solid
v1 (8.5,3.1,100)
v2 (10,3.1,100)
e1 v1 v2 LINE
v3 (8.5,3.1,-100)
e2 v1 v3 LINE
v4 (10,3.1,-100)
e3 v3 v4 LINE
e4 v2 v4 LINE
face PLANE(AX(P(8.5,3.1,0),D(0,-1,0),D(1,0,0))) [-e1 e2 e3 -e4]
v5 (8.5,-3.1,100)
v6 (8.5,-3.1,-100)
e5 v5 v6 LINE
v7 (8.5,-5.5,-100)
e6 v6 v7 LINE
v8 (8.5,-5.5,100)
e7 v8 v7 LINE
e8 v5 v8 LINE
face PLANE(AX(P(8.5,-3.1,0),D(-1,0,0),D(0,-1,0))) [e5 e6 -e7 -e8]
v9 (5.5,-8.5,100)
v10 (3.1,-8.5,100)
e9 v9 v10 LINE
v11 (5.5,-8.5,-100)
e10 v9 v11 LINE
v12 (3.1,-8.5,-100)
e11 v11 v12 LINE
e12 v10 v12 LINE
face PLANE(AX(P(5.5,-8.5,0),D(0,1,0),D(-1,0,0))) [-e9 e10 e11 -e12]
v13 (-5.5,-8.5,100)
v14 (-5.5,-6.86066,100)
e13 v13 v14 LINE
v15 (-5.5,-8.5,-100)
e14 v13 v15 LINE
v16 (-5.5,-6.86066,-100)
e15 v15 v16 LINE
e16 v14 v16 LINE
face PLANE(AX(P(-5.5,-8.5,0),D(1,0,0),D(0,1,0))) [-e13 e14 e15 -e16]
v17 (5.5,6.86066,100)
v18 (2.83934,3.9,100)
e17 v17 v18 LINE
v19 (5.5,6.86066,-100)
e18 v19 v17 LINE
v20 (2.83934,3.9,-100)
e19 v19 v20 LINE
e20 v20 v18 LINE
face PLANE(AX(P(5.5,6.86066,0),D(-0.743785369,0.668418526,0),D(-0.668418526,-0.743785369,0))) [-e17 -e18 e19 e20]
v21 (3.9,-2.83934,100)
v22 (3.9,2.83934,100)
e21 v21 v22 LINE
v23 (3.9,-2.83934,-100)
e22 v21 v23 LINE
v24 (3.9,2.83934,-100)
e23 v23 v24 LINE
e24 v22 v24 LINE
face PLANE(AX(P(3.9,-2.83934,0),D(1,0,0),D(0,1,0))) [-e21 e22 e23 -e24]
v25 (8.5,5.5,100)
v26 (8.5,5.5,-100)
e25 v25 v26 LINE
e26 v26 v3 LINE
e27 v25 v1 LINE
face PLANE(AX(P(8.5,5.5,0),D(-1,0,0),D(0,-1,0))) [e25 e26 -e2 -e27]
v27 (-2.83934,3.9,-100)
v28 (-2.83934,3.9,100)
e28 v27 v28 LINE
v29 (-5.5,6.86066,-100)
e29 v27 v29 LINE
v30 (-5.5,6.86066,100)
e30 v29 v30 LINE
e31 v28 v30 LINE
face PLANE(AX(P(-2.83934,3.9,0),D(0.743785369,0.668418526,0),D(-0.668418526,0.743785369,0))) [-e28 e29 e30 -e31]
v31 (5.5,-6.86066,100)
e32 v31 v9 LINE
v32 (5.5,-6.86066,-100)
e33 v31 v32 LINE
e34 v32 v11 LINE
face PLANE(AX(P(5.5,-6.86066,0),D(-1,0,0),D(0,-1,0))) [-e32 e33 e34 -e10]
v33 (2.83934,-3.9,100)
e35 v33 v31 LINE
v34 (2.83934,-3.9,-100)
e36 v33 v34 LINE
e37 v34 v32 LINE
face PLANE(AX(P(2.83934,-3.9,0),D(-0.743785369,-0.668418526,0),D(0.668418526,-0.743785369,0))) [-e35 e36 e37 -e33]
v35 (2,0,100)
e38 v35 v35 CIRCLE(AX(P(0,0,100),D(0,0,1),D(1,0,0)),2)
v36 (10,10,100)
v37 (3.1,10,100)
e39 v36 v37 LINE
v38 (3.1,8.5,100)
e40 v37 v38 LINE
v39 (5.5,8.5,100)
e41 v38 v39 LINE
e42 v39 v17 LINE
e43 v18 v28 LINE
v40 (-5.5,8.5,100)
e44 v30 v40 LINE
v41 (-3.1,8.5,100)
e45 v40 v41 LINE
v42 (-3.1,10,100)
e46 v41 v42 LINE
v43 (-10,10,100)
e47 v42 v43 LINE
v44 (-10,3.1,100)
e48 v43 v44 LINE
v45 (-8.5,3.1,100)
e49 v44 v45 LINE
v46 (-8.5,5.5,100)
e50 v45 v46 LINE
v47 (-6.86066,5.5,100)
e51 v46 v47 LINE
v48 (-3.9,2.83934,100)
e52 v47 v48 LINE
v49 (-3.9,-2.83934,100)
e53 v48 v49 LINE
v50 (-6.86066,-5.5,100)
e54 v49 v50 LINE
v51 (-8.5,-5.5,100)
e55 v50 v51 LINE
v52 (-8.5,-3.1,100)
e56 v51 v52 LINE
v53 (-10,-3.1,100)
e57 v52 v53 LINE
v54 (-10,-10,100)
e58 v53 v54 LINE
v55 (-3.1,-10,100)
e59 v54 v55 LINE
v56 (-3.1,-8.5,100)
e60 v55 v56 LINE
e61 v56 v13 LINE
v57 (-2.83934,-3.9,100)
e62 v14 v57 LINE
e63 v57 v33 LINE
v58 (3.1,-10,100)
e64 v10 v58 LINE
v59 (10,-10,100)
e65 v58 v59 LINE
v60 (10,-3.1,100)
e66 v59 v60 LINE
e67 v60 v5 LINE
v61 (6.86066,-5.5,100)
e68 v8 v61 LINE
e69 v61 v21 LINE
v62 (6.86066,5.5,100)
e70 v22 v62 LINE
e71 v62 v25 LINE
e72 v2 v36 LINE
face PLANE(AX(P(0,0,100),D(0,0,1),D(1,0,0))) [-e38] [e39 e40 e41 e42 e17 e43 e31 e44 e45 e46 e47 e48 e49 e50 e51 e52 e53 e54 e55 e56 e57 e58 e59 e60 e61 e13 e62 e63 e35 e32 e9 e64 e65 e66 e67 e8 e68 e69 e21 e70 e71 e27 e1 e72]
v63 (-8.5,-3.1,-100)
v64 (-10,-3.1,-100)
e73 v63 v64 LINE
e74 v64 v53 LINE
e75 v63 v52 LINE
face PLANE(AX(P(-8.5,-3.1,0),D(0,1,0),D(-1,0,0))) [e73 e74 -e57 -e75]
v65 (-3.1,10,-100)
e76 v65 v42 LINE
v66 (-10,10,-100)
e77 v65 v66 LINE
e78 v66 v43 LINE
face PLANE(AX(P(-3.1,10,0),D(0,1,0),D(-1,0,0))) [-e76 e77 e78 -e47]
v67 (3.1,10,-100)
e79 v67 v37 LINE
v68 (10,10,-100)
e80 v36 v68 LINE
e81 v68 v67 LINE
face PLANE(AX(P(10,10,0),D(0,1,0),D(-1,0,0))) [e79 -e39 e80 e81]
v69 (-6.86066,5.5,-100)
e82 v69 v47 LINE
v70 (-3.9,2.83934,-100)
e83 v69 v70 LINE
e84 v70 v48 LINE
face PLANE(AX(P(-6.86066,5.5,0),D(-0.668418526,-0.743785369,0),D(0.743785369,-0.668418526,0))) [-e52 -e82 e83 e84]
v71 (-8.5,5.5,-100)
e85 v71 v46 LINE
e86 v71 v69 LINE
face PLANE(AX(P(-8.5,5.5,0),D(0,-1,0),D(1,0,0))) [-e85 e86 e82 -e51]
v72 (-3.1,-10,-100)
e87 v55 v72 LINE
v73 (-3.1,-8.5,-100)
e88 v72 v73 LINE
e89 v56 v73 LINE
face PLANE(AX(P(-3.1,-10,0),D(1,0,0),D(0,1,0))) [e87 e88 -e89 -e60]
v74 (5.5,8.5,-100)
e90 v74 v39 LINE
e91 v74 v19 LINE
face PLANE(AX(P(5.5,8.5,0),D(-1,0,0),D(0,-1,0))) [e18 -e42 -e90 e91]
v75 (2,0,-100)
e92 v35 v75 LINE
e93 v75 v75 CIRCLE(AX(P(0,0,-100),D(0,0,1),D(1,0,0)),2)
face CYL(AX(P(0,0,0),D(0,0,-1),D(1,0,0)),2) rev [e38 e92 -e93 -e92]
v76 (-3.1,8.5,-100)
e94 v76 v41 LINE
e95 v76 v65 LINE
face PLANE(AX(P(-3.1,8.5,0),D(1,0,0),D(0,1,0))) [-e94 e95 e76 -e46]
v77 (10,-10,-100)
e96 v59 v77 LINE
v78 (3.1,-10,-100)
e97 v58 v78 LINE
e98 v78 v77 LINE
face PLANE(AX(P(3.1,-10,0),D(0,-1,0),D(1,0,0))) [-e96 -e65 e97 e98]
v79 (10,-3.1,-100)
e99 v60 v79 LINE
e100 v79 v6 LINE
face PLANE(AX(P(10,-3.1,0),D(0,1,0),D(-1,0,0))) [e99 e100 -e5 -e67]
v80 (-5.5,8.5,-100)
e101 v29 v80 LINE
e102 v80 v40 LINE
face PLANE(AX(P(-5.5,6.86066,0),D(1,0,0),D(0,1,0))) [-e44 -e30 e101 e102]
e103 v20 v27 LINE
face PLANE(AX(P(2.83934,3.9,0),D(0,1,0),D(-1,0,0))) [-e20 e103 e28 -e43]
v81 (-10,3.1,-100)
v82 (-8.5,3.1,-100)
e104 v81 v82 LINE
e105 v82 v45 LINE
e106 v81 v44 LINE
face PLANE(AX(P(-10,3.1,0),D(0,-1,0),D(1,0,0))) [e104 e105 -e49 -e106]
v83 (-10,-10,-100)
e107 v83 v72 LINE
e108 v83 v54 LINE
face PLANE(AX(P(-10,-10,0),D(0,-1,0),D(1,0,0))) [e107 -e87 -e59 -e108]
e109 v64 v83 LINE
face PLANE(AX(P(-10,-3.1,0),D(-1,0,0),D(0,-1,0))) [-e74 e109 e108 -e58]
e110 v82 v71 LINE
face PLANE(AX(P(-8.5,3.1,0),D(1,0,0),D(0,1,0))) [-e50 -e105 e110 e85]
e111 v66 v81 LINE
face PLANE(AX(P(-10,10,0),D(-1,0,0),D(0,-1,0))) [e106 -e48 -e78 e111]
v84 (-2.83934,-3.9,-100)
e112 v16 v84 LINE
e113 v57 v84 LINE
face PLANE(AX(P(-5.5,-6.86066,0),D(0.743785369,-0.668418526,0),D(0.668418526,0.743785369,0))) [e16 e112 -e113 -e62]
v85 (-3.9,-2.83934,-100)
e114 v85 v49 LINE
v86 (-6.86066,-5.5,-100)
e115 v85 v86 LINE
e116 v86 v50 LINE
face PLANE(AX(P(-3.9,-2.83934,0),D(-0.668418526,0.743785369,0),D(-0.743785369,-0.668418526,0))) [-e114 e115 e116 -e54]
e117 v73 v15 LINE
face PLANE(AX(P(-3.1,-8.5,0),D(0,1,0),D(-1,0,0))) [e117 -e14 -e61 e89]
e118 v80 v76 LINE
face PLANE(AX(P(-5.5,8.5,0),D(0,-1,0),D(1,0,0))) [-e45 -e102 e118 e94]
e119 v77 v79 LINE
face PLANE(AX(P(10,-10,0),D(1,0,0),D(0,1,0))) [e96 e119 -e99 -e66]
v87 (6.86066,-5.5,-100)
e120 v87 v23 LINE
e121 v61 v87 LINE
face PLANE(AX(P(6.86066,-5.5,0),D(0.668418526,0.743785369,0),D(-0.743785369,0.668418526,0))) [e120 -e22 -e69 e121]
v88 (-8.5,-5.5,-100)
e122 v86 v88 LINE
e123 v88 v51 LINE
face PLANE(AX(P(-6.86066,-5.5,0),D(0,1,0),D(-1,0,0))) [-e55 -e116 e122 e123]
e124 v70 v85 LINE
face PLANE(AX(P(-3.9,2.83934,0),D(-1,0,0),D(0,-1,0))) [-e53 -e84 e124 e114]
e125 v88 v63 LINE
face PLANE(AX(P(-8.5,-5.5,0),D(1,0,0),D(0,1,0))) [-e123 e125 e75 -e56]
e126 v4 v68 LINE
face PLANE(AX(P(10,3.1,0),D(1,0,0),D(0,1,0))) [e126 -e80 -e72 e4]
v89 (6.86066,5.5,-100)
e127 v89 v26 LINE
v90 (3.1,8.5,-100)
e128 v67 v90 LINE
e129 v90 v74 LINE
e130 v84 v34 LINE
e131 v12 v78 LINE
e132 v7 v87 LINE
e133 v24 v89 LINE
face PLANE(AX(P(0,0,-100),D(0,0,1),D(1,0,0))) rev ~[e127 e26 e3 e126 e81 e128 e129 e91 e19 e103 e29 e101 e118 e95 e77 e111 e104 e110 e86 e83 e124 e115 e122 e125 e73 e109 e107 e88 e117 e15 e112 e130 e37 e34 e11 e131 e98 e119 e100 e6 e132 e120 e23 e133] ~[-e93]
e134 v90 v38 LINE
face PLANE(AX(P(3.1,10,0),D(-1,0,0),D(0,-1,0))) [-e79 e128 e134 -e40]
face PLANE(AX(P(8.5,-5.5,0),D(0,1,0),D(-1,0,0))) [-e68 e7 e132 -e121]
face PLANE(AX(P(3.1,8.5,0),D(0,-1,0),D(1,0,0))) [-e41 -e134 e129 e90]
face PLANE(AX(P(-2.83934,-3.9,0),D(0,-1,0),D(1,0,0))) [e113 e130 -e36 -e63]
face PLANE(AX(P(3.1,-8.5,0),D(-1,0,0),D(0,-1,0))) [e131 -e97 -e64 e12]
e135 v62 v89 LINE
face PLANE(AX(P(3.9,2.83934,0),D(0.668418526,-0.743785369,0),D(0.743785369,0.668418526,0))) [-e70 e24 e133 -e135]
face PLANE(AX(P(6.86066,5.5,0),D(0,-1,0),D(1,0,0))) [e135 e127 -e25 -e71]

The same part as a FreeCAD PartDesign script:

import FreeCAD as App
import Part
import Sketcher
Q = App.Units.Quantity

doc = App.newDocument("Part")
body = doc.addObject("PartDesign::Body", "Body")

# Sketch on XY plane
sketch1 = doc.addObject("Sketcher::SketchObject", "Sketch")
body.addObject(sketch1)
sketch1.AttachmentSupport = (doc.XY_Plane, [""])
sketch1.MapMode = "FlatFace"
sketch1.addGeometry([
    Part.LineSegment(App.Vector(10, 10, 0), App.Vector(3.1, 10, 0)),  # 0
    Part.LineSegment(App.Vector(3.1, 10, 0), App.Vector(3.1, 8.5, 0)),  # 1
    Part.LineSegment(App.Vector(3.1, 8.5, 0), App.Vector(5.5, 8.5, 0)),  # 2
    Part.LineSegment(App.Vector(5.5, 8.5, 0), App.Vector(5.5, 6.9, 0)),  # 3
    Part.LineSegment(App.Vector(5.5, 6.9, 0), App.Vector(2.8, 3.9, 0)),  # 4
    Part.LineSegment(App.Vector(2.8, 3.9, 0), App.Vector(-2.8, 3.9, 0)),  # 5
    Part.LineSegment(App.Vector(-2.8, 3.9, 0), App.Vector(-5.5, 6.9, 0)),  # 6
    Part.LineSegment(App.Vector(-5.5, 6.9, 0), App.Vector(-5.5, 8.5, 0)),  # 7
    Part.LineSegment(App.Vector(-5.5, 8.5, 0), App.Vector(-3.1, 8.5, 0)),  # 8
    Part.LineSegment(App.Vector(-3.1, 8.5, 0), App.Vector(-3.1, 10, 0)),  # 9
    Part.LineSegment(App.Vector(-3.1, 10, 0), App.Vector(-10, 10, 0)),  # 10
    Part.LineSegment(App.Vector(-10, 10, 0), App.Vector(-10, 3.1, 0)),  # 11
    Part.LineSegment(App.Vector(-10, 3.1, 0), App.Vector(-8.5, 3.1, 0)),  # 12
    Part.LineSegment(App.Vector(-8.5, 3.1, 0), App.Vector(-8.5, 5.5, 0)),  # 13
    Part.LineSegment(App.Vector(-8.5, 5.5, 0), App.Vector(-6.9, 5.5, 0)),  # 14
    Part.LineSegment(App.Vector(-6.9, 5.5, 0), App.Vector(-3.9, 2.8, 0)),  # 15
    Part.LineSegment(App.Vector(-3.9, 2.8, 0), App.Vector(-3.9, -2.8, 0)),  # 16
    Part.LineSegment(App.Vector(-3.9, -2.8, 0), App.Vector(-6.9, -5.5, 0)),  # 17
    Part.LineSegment(App.Vector(-6.9, -5.5, 0), App.Vector(-8.5, -5.5, 0)),  # 18
    Part.LineSegment(App.Vector(-8.5, -5.5, 0), App.Vector(-8.5, -3.1, 0)),  # 19
    Part.LineSegment(App.Vector(-8.5, -3.1, 0), App.Vector(-10, -3.1, 0)),  # 20
    Part.LineSegment(App.Vector(-10, -3.1, 0), App.Vector(-10, -10, 0)),  # 21
    Part.LineSegment(App.Vector(-10, -10, 0), App.Vector(-3.1, -10, 0)),  # 22
    Part.LineSegment(App.Vector(-3.1, -10, 0), App.Vector(-3.1, -8.5, 0)),  # 23
    Part.LineSegment(App.Vector(-3.1, -8.5, 0), App.Vector(-5.5, -8.5, 0)),  # 24
    Part.LineSegment(App.Vector(-5.5, -8.5, 0), App.Vector(-5.5, -6.9, 0)),  # 25
    Part.LineSegment(App.Vector(-5.5, -6.9, 0), App.Vector(-2.8, -3.9, 0)),  # 26
    Part.LineSegment(App.Vector(-2.8, -3.9, 0), App.Vector(2.8, -3.9, 0)),  # 27
    Part.LineSegment(App.Vector(2.8, -3.9, 0), App.Vector(5.5, -6.9, 0)),  # 28
    Part.LineSegment(App.Vector(5.5, -6.9, 0), App.Vector(5.5, -8.5, 0)),  # 29
    Part.LineSegment(App.Vector(5.5, -8.5, 0), App.Vector(3.1, -8.5, 0)),  # 30
    Part.LineSegment(App.Vector(3.1, -8.5, 0), App.Vector(3.1, -10, 0)),  # 31
    Part.LineSegment(App.Vector(3.1, -10, 0), App.Vector(10, -10, 0)),  # 32
    Part.LineSegment(App.Vector(10, -10, 0), App.Vector(10, -3.1, 0)),  # 33
    Part.LineSegment(App.Vector(10, -3.1, 0), App.Vector(8.5, -3.1, 0)),  # 34
    Part.LineSegment(App.Vector(8.5, -3.1, 0), App.Vector(8.5, -5.5, 0)),  # 35
    Part.LineSegment(App.Vector(8.5, -5.5, 0), App.Vector(6.9, -5.5, 0)),  # 36
    Part.LineSegment(App.Vector(6.9, -5.5, 0), App.Vector(3.9, -2.8, 0)),  # 37
    Part.LineSegment(App.Vector(3.9, -2.8, 0), App.Vector(3.9, 2.8, 0)),  # 38
    Part.LineSegment(App.Vector(3.9, 2.8, 0), App.Vector(6.9, 5.5, 0)),  # 39
    Part.LineSegment(App.Vector(6.9, 5.5, 0), App.Vector(8.5, 5.5, 0)),  # 40
    Part.LineSegment(App.Vector(8.5, 5.5, 0), App.Vector(8.5, 3.1, 0)),  # 41
    Part.LineSegment(App.Vector(8.5, 3.1, 0), App.Vector(10, 3.1, 0)),  # 42
    Part.LineSegment(App.Vector(10, 3.1, 0), App.Vector(10, 10, 0)),  # 43
    Part.Circle(App.Vector(0, 0, 0), App.Vector(0, 0, 1), 2),  # 44
], False)
sketch1.addConstraint([
    Sketcher.Constraint("Coincident", 0, 2, 1, 1),
    Sketcher.Constraint("Coincident", 1, 2, 2, 1),
    Sketcher.Constraint("Coincident", 2, 2, 3, 1),
    Sketcher.Constraint("Coincident", 3, 2, 4, 1),
    Sketcher.Constraint("Coincident", 4, 2, 5, 1),
    Sketcher.Constraint("Coincident", 5, 2, 6, 1),
    Sketcher.Constraint("Coincident", 6, 2, 7, 1),
    Sketcher.Constraint("Coincident", 7, 2, 8, 1),
    Sketcher.Constraint("Coincident", 8, 2, 9, 1),
    Sketcher.Constraint("Coincident", 9, 2, 10, 1),
    Sketcher.Constraint("Coincident", 10, 2, 11, 1),
    Sketcher.Constraint("Coincident", 11, 2, 12, 1),
    Sketcher.Constraint("Coincident", 12, 2, 13, 1),
    Sketcher.Constraint("Coincident", 13, 2, 14, 1),
    Sketcher.Constraint("Coincident", 14, 2, 15, 1),
    Sketcher.Constraint("Coincident", 15, 2, 16, 1),
    Sketcher.Constraint("Coincident", 16, 2, 17, 1),
    Sketcher.Constraint("Coincident", 17, 2, 18, 1),
    Sketcher.Constraint("Coincident", 18, 2, 19, 1),
    Sketcher.Constraint("Coincident", 19, 2, 20, 1),
    Sketcher.Constraint("Coincident", 20, 2, 21, 1),
    Sketcher.Constraint("Coincident", 21, 2, 22, 1),
    Sketcher.Constraint("Coincident", 22, 2, 23, 1),
    Sketcher.Constraint("Coincident", 23, 2, 24, 1),
    Sketcher.Constraint("Coincident", 24, 2, 25, 1),
    Sketcher.Constraint("Coincident", 25, 2, 26, 1),
    Sketcher.Constraint("Coincident", 26, 2, 27, 1),
    Sketcher.Constraint("Coincident", 27, 2, 28, 1),
    Sketcher.Constraint("Coincident", 28, 2, 29, 1),
    Sketcher.Constraint("Coincident", 29, 2, 30, 1),
    Sketcher.Constraint("Coincident", 30, 2, 31, 1),
    Sketcher.Constraint("Coincident", 31, 2, 32, 1),
    Sketcher.Constraint("Coincident", 32, 2, 33, 1),
    Sketcher.Constraint("Coincident", 33, 2, 34, 1),
    Sketcher.Constraint("Coincident", 34, 2, 35, 1),
    Sketcher.Constraint("Coincident", 35, 2, 36, 1),
    Sketcher.Constraint("Coincident", 36, 2, 37, 1),
    Sketcher.Constraint("Coincident", 37, 2, 38, 1),
    Sketcher.Constraint("Coincident", 38, 2, 39, 1),
    Sketcher.Constraint("Coincident", 39, 2, 40, 1),
    Sketcher.Constraint("Coincident", 40, 2, 41, 1),
    Sketcher.Constraint("Coincident", 41, 2, 42, 1),
    Sketcher.Constraint("Coincident", 42, 2, 43, 1),
    Sketcher.Constraint("Coincident", 43, 2, 0, 1),
    Sketcher.Constraint("Horizontal", 0),
    Sketcher.Constraint("Vertical", 1),
    Sketcher.Constraint("Horizontal", 2),
    Sketcher.Constraint("Vertical", 3),
    Sketcher.Constraint("Horizontal", 5),
    Sketcher.Constraint("Vertical", 7),
    Sketcher.Constraint("Horizontal", 8),
    Sketcher.Constraint("Vertical", 9),
    Sketcher.Constraint("Horizontal", 10),
    Sketcher.Constraint("Vertical", 11),
    Sketcher.Constraint("Horizontal", 12),
    Sketcher.Constraint("Vertical", 13),
    Sketcher.Constraint("Horizontal", 14),
    Sketcher.Constraint("Vertical", 16),
    Sketcher.Constraint("Horizontal", 18),
    Sketcher.Constraint("Vertical", 19),
    Sketcher.Constraint("Horizontal", 20),
    Sketcher.Constraint("Vertical", 21),
    Sketcher.Constraint("Horizontal", 22),
    Sketcher.Constraint("Vertical", 23),
    Sketcher.Constraint("Horizontal", 24),
    Sketcher.Constraint("Vertical", 25),
    Sketcher.Constraint("Horizontal", 27),
    Sketcher.Constraint("Vertical", 29),
    Sketcher.Constraint("Horizontal", 30),
    Sketcher.Constraint("Vertical", 31),
    Sketcher.Constraint("Horizontal", 32),
    Sketcher.Constraint("Vertical", 33),
    Sketcher.Constraint("Horizontal", 34),
    Sketcher.Constraint("Vertical", 35),
    Sketcher.Constraint("Horizontal", 36),
    Sketcher.Constraint("Vertical", 38),
    Sketcher.Constraint("Horizontal", 40),
    Sketcher.Constraint("Vertical", 41),
    Sketcher.Constraint("Horizontal", 42),
    Sketcher.Constraint("Vertical", 43),
    Sketcher.Constraint("Coincident", 44, 3, -1, 1),
    Sketcher.Constraint("Symmetric", 0, 2, 22, 2, -1, 1),
    Sketcher.Constraint("Symmetric", 2, 2, 24, 2, -1, 1),
    Sketcher.Constraint("Symmetric", 4, 2, 26, 2, -1, 1),
    Sketcher.Constraint("Symmetric", 6, 2, 28, 2, -1, 1),
    Sketcher.Constraint("Symmetric", 8, 2, 30, 2, -1, 1),
    Sketcher.Constraint("Symmetric", 10, 2, 32, 2, -1, 1),
    Sketcher.Constraint("Symmetric", 12, 2, 34, 2, -1, 1),
    Sketcher.Constraint("Symmetric", 14, 2, 36, 2, -1, 1),
    Sketcher.Constraint("Symmetric", 15, 2, 37, 2, -1, 1),
    Sketcher.Constraint("Symmetric", 17, 2, 39, 2, -1, 1),
    Sketcher.Constraint("Symmetric", 19, 2, 41, 2, -1, 1),
    Sketcher.Constraint("Symmetric", 3, 2, 6, 2, -2),
    Sketcher.Constraint("Symmetric", 1, 2, 8, 2, -2),
    Sketcher.Constraint("Symmetric", 21, 2, 32, 2, -2),
    Sketcher.Constraint("Symmetric", 19, 2, 34, 2, -2),
    Sketcher.Constraint("Symmetric", 17, 2, 36, 2, -2),
    Sketcher.Constraint("Perpendicular", 4, 15),
    Sketcher.Constraint("Perpendicular", 6, 17),
    Sketcher.Constraint("Perpendicular", 15, 26),
    Sketcher.Constraint("Perpendicular", 17, 28),
    Sketcher.Constraint("Perpendicular", 28, 39),
    Sketcher.Constraint("Horizontal", 16, 2, 37, 2),
    Sketcher.Constraint("Vertical", 33, 2, 42, 2),
    Sketcher.Constraint("Equal", 42, 1),
    Sketcher.Constraint("Equal", 40, 3),
    Sketcher.Constraint("Equal", 32, 11),
    Sketcher.Constraint("Equal", 30, 13),
    Sketcher.Constraint("Equal", 27, 16),
    Sketcher.Constraint("Equal", 6, 15),
    Sketcher.Constraint("Diameter", 44, Q("4 mm")),
    Sketcher.Constraint("DistanceX", 0, 2, 0, 1, Q("6.9 mm")),
    Sketcher.Constraint("DistanceX", 2, 1, 2, 2, Q("2.4 mm")),
    Sketcher.Constraint("DistanceX", 12, 1, 12, 2, Q("1.5 mm")),
    Sketcher.Constraint("DistanceY", -1, 1, 0, 2, Q("10 mm")),
    Sketcher.Constraint("DistanceY", -1, 1, 4, 2, Q("3.9 mm")),
    Sketcher.Constraint("DistanceX", 5, 2, 5, 1, Q("5.67868 mm")),
    Sketcher.Constraint("DistanceX", 14, 1, 14, 2, Q("1.63934 mm")),
])
pad1 = doc.addObject("PartDesign::Pad", "Pad")
body.addObject(pad1)
pad1.Profile = sketch1
pad1.Length = 200
pad1.Midplane = True

doc.recompute()
